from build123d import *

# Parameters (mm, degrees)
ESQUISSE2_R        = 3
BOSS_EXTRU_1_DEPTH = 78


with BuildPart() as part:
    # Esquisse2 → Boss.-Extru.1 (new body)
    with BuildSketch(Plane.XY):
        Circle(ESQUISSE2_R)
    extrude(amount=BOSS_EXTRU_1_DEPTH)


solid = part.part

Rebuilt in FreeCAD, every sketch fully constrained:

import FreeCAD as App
import Part
import Sketcher

V = App.Vector

doc = App.newDocument("Part")
body = doc.addObject("PartDesign::Body", "Body")

# Sketch on XY plane
sketch1 = body.newObject("Sketcher::SketchObject", "Sketch")
sketch1.AttachmentSupport = (doc.getObject("XY_Plane"), [""])
sketch1.MapMode = "FlatFace"
sketch1.addGeometry(Part.Circle(V(0, 0, 0), V(0, 0, 1), 3), False)
sketch1.addConstraint([
    Sketcher.Constraint("Coincident", 0, 3, -1, 1),
    Sketcher.Constraint("Diameter", 0, 6.0),
])
pad1 = body.newObject("PartDesign::Pad", "Pad")
pad1.Profile = sketch1
pad1.Length = 78

doc.recompute()
